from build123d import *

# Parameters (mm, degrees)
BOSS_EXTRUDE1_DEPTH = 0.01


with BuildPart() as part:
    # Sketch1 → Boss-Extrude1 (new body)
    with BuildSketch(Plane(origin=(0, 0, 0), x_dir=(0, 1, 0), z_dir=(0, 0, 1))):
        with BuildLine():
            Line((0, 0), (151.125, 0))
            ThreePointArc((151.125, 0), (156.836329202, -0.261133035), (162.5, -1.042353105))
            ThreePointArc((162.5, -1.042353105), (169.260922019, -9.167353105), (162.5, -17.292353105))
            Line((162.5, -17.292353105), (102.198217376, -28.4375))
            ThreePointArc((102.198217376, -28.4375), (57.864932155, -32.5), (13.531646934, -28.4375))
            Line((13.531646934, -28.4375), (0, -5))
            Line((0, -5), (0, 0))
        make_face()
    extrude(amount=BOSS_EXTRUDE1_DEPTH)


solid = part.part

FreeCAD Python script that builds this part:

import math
import FreeCAD as App
import Part
import Sketcher
from FreeCAD import Vector

doc = App.newDocument("Part")
params = doc.addObject("Spreadsheet::Sheet", "Params")
for row, (alias, value) in enumerate([
    ("sketch1_width", "5 mm"),
    ("pad1_length", "0.01 mm"),
], start=1):
    params.set(f"A{row}", alias)
    params.set(f"B{row}", "=" + value)
    params.setAlias(f"B{row}", alias)

body = doc.addObject("PartDesign::Body", "Body")

sketch1 = body.newObject("Sketcher::SketchObject", "Sketch")
sketch1.AttachmentSupport = (doc.getObject("XY_Plane"), [""])
sketch1.MapMode = "FlatFace"
sketch1.addGeometry(Part.LineSegment(Vector(0, 151.125, 0), Vector(0, 0, 0)), False)
sketch1.addGeometry(Part.LineSegment(Vector(0, 0, 0), Vector(5, 0, 0)), False)
sketch1.addGeometry(Part.LineSegment(Vector(5, 0, 0), Vector(28.4375, 13.531647, 0)), False)
sketch1.addGeometry(Part.ArcOfCircle(Part.Circle(Vector(-211.43158, 57.864932, 0), Vector(0, 0, 1), 243.93158), math.radians(-10.471403), math.radians(10.471403)), False)
sketch1.addGeometry(Part.LineSegment(Vector(28.4375, 102.198217, 0), Vector(17.292353, 162.5, 0)), False)
sketch1.addGeometry(Part.ArcOfCircle(Part.Circle(Vector(9.167353, 160.998314, 0), Vector(0, 0, 1), 8.262608), math.radians(10.471403), math.radians(169.528597)), False)
sketch1.addGeometry(Part.ArcOfCircle(Part.Circle(Vector(62.587776, 151.125, 0), Vector(0, 0, 1), 62.587776), math.radians(169.528597), math.radians(180)), False)
sketch1.addConstraint(Sketcher.Constraint("Coincident", 0, 2, 1, 1))
sketch1.addConstraint(Sketcher.Constraint("Coincident", 1, 2, 2, 1))
sketch1.addConstraint(Sketcher.Constraint("Coincident", 2, 2, 3, 1))
sketch1.addConstraint(Sketcher.Constraint("Coincident", 3, 2, 4, 1))
sketch1.addConstraint(Sketcher.Constraint("Coincident", 4, 2, 5, 1))
sketch1.addConstraint(Sketcher.Constraint("Coincident", 5, 2, 6, 1))
sketch1.addConstraint(Sketcher.Constraint("Coincident", 6, 2, 0, 1))
sketch1.addConstraint(Sketcher.Constraint("Vertical", 0))
sketch1.addConstraint(Sketcher.Constraint("Horizontal", 1))
sketch1.addConstraint(Sketcher.Constraint("Coincident", 0, 2, -1, 1))
sketch1.addConstraint(Sketcher.Constraint("DistanceX", 1, 1, 1, 2, 5.0))
sketch1.addConstraint(Sketcher.Constraint("DistanceY", -1, 1, 4, 2, 162.5))
sketch1.addConstraint(Sketcher.Constraint("DistanceY", -1, 1, 5, 2, 162.5))
sketch1.addConstraint(Sketcher.Constraint("DistanceY", 0, 2, 0, 1, 151.125))
sketch1.addConstraint(Sketcher.Constraint("Radius", 3, 243.93158))
sketch1.addConstraint(Sketcher.Constraint("DistanceX", 5, 2, 4, 2, 16.25))
sketch1.addConstraint(Sketcher.Constraint("DistanceY", -1, 1, 6, 3, 151.125))
sketch1.addConstraint(Sketcher.Constraint("Radius", 5, 8.262608))
sketch1.addConstraint(Sketcher.Constraint("Radius", 6, 62.587776))
sketch1.addConstraint(Sketcher.Constraint("DistanceX", -1, 1, 2, 2, 28.4375))
sketch1.addConstraint(Sketcher.Constraint("DistanceX", -1, 1, 3, 2, 28.4375))
sketch1.addConstraint(Sketcher.Constraint("DistanceX", 3, 3, -1, 1, 211.43158))
sketch1.addConstraint(Sketcher.Constraint("Distance", 2, 27.063294))
sketch1.setExpression("Constraints[10]", "Params.sketch1_width")
pad1 = body.newObject("PartDesign::Pad", "Pad")
pad1.Profile = sketch1
pad1.setExpression("Length", "Params.pad1_length")

doc.recompute()
